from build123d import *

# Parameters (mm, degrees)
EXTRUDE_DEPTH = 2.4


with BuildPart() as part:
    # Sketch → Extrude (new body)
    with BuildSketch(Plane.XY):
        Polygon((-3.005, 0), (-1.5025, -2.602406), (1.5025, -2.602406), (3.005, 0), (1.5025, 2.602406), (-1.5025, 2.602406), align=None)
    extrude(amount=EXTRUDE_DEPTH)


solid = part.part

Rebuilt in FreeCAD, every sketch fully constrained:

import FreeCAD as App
import Part
import Sketcher
Q = App.Units.Quantity


def add_polygon(sketch, points):
    """Adds a closed chain of lines whose ends are joined by coincident constraints."""
    first, n = sketch.GeometryCount, len(points)
    for a, b in zip(points, points[1:] + points[:1]):
        sketch.addGeometry(Part.LineSegment(App.Vector(*a, 0), App.Vector(*b, 0)), False)
    for i in range(n):
        sketch.addConstraint(Sketcher.Constraint("Coincident", first + i, 2, first + (i + 1) % n, 1))

doc = App.newDocument("Part")
body = doc.addObject("PartDesign::Body", "Body")

# Sketch on XY plane
sketch1 = doc.addObject("Sketcher::SketchObject", "Sketch")
body.addObject(sketch1)
sketch1.AttachmentSupport = (doc.XY_Plane, [""])
sketch1.MapMode = "FlatFace"
add_polygon(sketch1, [(-3, 0), (-1.5, -2.6), (1.5, -2.6), (3, 0), (1.5, 2.6), (-1.5, 2.6)])  # lines 0-5
sketch1.addConstraint(Sketcher.Constraint("Horizontal", 1))
sketch1.addConstraint(Sketcher.Constraint("Horizontal", 4))
sketch1.addConstraint(Sketcher.Constraint("Symmetric", 0, 2, 3, 2, -1, 1))
sketch1.addConstraint(Sketcher.Constraint("Symmetric", 2, 2, 5, 2, -1, 1))
sketch1.addConstraint(Sketcher.Constraint("PointOnObject", 2, 2, -1))
sketch1.addConstraint(Sketcher.Constraint("Parallel", 2, 5))
sketch1.addConstraint(Sketcher.Constraint("Vertical", 1, 2, 3, 2))
sketch1.addConstraint(Sketcher.Constraint("Angle", 0, Q("-59.999997 deg")))
sketch1.addConstraint(Sketcher.Constraint("DistanceX", 1, 1, 1, 2, 3.005))
sketch1.addConstraint(Sketcher.Constraint("DistanceX", 5, 2, 2, 2, 6.01))
pad1 = doc.addObject("PartDesign::Pad", "Pad")
body.addObject(pad1)
pad1.Profile = sketch1
pad1.Length = 2.4

doc.recompute()
